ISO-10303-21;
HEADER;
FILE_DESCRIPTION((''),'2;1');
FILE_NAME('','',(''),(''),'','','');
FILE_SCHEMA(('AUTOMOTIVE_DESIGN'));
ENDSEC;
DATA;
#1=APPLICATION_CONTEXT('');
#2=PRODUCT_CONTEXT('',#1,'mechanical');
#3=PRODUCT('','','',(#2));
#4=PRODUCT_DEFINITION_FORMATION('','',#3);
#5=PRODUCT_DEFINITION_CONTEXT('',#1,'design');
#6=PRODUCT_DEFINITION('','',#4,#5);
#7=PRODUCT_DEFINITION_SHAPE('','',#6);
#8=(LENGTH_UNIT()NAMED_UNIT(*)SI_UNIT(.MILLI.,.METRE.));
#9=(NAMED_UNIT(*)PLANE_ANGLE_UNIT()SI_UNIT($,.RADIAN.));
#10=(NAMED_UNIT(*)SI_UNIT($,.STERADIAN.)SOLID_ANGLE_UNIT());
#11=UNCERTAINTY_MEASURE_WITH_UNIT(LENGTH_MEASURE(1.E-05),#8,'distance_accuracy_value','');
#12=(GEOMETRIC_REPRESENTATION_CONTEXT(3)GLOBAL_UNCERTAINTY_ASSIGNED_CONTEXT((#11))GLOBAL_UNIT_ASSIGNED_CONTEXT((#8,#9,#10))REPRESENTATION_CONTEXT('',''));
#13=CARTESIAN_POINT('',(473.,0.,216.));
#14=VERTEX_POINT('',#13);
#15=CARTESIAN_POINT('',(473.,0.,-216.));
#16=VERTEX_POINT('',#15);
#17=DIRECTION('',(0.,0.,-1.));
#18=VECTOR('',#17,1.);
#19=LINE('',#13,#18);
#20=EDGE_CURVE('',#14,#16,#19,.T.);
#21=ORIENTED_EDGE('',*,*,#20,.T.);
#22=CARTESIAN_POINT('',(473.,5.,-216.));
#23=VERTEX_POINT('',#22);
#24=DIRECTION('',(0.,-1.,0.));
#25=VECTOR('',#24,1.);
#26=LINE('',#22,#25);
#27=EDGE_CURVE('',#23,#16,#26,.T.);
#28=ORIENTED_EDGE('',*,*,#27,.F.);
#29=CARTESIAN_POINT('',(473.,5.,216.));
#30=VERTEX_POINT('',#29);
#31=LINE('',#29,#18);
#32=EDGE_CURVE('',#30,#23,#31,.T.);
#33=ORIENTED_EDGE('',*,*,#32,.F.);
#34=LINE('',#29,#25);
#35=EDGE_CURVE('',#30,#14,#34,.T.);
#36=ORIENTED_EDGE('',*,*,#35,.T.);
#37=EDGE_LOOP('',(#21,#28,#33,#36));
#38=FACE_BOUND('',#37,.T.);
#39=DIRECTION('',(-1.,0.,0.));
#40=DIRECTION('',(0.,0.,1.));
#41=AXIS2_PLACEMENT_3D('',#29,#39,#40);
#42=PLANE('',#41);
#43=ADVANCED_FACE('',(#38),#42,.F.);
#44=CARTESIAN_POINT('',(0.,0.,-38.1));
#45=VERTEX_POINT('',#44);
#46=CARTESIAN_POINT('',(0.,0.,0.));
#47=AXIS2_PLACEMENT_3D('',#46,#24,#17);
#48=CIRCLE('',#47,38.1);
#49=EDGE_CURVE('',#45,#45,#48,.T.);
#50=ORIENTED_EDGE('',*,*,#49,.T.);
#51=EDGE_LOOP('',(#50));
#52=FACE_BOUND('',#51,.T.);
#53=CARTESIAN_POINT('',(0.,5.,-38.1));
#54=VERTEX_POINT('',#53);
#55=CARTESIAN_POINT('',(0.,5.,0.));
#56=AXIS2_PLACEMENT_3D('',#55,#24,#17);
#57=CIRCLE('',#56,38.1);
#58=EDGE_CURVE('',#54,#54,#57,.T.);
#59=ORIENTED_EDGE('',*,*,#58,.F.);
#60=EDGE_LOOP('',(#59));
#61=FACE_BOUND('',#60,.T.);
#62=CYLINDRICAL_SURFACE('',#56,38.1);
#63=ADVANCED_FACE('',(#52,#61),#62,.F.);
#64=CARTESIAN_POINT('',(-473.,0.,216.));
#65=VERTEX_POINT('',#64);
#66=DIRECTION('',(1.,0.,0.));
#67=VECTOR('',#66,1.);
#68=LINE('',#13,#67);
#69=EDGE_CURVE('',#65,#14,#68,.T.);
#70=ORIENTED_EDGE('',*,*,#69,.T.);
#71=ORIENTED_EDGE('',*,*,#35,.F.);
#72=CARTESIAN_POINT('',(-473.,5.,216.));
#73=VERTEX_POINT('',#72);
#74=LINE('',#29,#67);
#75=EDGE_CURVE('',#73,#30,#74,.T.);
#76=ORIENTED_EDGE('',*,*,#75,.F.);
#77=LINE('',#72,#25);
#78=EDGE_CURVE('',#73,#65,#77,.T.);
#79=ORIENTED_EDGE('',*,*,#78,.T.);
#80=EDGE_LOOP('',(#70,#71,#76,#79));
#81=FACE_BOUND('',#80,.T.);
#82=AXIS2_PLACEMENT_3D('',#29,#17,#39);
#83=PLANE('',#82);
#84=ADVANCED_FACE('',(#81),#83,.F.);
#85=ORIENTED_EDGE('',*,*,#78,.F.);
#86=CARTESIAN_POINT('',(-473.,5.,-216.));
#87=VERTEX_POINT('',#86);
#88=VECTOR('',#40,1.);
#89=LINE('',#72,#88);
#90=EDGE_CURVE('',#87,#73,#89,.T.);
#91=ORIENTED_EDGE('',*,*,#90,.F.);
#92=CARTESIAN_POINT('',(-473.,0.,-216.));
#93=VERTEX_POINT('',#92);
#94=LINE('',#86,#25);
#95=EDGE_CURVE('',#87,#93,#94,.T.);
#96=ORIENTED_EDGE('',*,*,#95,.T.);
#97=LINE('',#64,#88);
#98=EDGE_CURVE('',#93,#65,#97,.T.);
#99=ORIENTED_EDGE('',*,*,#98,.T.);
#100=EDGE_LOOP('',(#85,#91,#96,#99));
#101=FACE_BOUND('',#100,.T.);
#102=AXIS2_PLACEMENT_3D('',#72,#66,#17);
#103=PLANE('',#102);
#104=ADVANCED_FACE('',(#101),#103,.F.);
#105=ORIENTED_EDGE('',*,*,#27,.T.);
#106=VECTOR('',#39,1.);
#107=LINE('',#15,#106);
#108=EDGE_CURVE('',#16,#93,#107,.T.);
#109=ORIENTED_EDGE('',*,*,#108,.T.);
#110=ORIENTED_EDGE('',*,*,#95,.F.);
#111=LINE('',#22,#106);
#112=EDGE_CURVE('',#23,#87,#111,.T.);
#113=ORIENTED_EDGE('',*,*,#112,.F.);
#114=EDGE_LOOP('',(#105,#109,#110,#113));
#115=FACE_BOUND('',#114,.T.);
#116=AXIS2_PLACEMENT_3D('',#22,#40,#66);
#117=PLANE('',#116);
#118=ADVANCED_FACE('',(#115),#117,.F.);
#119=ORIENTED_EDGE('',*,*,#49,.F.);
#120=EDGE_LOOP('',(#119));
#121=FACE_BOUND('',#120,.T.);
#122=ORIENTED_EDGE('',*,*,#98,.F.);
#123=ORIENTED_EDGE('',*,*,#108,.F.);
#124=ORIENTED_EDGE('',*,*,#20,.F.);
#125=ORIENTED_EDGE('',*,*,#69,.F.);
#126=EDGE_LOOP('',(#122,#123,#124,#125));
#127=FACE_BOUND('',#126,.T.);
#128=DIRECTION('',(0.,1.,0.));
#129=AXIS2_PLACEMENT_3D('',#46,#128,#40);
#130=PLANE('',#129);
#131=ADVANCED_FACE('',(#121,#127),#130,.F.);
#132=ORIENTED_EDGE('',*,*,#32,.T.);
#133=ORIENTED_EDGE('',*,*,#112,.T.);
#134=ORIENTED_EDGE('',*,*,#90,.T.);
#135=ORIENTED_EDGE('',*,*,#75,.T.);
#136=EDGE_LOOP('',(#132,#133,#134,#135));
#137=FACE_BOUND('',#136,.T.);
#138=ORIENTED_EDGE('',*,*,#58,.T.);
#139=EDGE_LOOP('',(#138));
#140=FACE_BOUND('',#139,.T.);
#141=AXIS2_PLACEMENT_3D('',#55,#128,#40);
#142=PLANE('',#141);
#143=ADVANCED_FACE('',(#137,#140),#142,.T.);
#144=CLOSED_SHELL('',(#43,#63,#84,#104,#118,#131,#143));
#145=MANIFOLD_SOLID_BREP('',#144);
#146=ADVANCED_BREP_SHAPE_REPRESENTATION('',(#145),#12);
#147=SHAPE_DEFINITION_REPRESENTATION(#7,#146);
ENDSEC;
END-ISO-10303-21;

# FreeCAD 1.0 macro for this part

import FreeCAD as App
import Part
import Sketcher
from FreeCAD import Vector
Q = App.Units.Quantity

doc = App.newDocument("Part")
body = doc.addObject("PartDesign::Body", "Body")

sketch1 = doc.addObject("Sketcher::SketchObject", "Sketch")
body.addObject(sketch1)
sketch1.AttachmentSupport = (doc.XZ_Plane, [""])
sketch1.MapMode = "FlatFace"
sketch1.addGeometry(Part.LineSegment(Vector(-473, -216, 0), Vector(-473, 216, 0)), False)
sketch1.addGeometry(Part.LineSegment(Vector(-473, 216, 0), Vector(473, 216, 0)), False)
sketch1.addGeometry(Part.LineSegment(Vector(473, 216, 0), Vector(473, -216, 0)), False)
sketch1.addGeometry(Part.LineSegment(Vector(473, -216, 0), Vector(-473, -216, 0)), False)
sketch1.addConstraint(Sketcher.Constraint("Coincident", 0, 2, 1, 1))
sketch1.addConstraint(Sketcher.Constraint("Coincident", 1, 2, 2, 1))
sketch1.addConstraint(Sketcher.Constraint("Coincident", 2, 2, 3, 1))
sketch1.addConstraint(Sketcher.Constraint("Coincident", 3, 2, 0, 1))
sketch1.addConstraint(Sketcher.Constraint("Vertical", 0))
sketch1.addConstraint(Sketcher.Constraint("Horizontal", 1))
sketch1.addConstraint(Sketcher.Constraint("Vertical", 2))
sketch1.addConstraint(Sketcher.Constraint("Horizontal", 3))
sketch1.addConstraint(Sketcher.Constraint("Symmetric", 0, 2, 2, 2, -1, 1))
sketch1.addConstraint(Sketcher.Constraint("DistanceX", 1, 1, 1, 2, Q("946 mm")))
sketch1.addConstraint(Sketcher.Constraint("DistanceY", 0, 1, 0, 2, Q("432 mm")))
pad1 = doc.addObject("PartDesign::Pad", "Pad")
body.addObject(pad1)
pad1.Profile = sketch1
pad1.Length = 5
pad1.Reversed = True

sketch2 = doc.addObject("Sketcher::SketchObject", "Sketch001")
body.addObject(sketch2)
sketch2.AttachmentSupport = (doc.XZ_Plane, [""])
sketch2.MapMode = "FlatFace"
sketch2.addGeometry(Part.Circle(Vector(0, 0, 0), Vector(0, 0, 1), 38), False)
sketch2.addConstraint(Sketcher.Constraint("Coincident", 0, 3, -1, 1))
sketch2.addConstraint(Sketcher.Constraint("Diameter", 0, Q("76.2 mm")))
pocket1 = doc.addObject("PartDesign::Pocket", "Pocket")
body.addObject(pocket1)
pocket1.Profile = sketch2
pocket1.Length = 5

doc.recompute()
